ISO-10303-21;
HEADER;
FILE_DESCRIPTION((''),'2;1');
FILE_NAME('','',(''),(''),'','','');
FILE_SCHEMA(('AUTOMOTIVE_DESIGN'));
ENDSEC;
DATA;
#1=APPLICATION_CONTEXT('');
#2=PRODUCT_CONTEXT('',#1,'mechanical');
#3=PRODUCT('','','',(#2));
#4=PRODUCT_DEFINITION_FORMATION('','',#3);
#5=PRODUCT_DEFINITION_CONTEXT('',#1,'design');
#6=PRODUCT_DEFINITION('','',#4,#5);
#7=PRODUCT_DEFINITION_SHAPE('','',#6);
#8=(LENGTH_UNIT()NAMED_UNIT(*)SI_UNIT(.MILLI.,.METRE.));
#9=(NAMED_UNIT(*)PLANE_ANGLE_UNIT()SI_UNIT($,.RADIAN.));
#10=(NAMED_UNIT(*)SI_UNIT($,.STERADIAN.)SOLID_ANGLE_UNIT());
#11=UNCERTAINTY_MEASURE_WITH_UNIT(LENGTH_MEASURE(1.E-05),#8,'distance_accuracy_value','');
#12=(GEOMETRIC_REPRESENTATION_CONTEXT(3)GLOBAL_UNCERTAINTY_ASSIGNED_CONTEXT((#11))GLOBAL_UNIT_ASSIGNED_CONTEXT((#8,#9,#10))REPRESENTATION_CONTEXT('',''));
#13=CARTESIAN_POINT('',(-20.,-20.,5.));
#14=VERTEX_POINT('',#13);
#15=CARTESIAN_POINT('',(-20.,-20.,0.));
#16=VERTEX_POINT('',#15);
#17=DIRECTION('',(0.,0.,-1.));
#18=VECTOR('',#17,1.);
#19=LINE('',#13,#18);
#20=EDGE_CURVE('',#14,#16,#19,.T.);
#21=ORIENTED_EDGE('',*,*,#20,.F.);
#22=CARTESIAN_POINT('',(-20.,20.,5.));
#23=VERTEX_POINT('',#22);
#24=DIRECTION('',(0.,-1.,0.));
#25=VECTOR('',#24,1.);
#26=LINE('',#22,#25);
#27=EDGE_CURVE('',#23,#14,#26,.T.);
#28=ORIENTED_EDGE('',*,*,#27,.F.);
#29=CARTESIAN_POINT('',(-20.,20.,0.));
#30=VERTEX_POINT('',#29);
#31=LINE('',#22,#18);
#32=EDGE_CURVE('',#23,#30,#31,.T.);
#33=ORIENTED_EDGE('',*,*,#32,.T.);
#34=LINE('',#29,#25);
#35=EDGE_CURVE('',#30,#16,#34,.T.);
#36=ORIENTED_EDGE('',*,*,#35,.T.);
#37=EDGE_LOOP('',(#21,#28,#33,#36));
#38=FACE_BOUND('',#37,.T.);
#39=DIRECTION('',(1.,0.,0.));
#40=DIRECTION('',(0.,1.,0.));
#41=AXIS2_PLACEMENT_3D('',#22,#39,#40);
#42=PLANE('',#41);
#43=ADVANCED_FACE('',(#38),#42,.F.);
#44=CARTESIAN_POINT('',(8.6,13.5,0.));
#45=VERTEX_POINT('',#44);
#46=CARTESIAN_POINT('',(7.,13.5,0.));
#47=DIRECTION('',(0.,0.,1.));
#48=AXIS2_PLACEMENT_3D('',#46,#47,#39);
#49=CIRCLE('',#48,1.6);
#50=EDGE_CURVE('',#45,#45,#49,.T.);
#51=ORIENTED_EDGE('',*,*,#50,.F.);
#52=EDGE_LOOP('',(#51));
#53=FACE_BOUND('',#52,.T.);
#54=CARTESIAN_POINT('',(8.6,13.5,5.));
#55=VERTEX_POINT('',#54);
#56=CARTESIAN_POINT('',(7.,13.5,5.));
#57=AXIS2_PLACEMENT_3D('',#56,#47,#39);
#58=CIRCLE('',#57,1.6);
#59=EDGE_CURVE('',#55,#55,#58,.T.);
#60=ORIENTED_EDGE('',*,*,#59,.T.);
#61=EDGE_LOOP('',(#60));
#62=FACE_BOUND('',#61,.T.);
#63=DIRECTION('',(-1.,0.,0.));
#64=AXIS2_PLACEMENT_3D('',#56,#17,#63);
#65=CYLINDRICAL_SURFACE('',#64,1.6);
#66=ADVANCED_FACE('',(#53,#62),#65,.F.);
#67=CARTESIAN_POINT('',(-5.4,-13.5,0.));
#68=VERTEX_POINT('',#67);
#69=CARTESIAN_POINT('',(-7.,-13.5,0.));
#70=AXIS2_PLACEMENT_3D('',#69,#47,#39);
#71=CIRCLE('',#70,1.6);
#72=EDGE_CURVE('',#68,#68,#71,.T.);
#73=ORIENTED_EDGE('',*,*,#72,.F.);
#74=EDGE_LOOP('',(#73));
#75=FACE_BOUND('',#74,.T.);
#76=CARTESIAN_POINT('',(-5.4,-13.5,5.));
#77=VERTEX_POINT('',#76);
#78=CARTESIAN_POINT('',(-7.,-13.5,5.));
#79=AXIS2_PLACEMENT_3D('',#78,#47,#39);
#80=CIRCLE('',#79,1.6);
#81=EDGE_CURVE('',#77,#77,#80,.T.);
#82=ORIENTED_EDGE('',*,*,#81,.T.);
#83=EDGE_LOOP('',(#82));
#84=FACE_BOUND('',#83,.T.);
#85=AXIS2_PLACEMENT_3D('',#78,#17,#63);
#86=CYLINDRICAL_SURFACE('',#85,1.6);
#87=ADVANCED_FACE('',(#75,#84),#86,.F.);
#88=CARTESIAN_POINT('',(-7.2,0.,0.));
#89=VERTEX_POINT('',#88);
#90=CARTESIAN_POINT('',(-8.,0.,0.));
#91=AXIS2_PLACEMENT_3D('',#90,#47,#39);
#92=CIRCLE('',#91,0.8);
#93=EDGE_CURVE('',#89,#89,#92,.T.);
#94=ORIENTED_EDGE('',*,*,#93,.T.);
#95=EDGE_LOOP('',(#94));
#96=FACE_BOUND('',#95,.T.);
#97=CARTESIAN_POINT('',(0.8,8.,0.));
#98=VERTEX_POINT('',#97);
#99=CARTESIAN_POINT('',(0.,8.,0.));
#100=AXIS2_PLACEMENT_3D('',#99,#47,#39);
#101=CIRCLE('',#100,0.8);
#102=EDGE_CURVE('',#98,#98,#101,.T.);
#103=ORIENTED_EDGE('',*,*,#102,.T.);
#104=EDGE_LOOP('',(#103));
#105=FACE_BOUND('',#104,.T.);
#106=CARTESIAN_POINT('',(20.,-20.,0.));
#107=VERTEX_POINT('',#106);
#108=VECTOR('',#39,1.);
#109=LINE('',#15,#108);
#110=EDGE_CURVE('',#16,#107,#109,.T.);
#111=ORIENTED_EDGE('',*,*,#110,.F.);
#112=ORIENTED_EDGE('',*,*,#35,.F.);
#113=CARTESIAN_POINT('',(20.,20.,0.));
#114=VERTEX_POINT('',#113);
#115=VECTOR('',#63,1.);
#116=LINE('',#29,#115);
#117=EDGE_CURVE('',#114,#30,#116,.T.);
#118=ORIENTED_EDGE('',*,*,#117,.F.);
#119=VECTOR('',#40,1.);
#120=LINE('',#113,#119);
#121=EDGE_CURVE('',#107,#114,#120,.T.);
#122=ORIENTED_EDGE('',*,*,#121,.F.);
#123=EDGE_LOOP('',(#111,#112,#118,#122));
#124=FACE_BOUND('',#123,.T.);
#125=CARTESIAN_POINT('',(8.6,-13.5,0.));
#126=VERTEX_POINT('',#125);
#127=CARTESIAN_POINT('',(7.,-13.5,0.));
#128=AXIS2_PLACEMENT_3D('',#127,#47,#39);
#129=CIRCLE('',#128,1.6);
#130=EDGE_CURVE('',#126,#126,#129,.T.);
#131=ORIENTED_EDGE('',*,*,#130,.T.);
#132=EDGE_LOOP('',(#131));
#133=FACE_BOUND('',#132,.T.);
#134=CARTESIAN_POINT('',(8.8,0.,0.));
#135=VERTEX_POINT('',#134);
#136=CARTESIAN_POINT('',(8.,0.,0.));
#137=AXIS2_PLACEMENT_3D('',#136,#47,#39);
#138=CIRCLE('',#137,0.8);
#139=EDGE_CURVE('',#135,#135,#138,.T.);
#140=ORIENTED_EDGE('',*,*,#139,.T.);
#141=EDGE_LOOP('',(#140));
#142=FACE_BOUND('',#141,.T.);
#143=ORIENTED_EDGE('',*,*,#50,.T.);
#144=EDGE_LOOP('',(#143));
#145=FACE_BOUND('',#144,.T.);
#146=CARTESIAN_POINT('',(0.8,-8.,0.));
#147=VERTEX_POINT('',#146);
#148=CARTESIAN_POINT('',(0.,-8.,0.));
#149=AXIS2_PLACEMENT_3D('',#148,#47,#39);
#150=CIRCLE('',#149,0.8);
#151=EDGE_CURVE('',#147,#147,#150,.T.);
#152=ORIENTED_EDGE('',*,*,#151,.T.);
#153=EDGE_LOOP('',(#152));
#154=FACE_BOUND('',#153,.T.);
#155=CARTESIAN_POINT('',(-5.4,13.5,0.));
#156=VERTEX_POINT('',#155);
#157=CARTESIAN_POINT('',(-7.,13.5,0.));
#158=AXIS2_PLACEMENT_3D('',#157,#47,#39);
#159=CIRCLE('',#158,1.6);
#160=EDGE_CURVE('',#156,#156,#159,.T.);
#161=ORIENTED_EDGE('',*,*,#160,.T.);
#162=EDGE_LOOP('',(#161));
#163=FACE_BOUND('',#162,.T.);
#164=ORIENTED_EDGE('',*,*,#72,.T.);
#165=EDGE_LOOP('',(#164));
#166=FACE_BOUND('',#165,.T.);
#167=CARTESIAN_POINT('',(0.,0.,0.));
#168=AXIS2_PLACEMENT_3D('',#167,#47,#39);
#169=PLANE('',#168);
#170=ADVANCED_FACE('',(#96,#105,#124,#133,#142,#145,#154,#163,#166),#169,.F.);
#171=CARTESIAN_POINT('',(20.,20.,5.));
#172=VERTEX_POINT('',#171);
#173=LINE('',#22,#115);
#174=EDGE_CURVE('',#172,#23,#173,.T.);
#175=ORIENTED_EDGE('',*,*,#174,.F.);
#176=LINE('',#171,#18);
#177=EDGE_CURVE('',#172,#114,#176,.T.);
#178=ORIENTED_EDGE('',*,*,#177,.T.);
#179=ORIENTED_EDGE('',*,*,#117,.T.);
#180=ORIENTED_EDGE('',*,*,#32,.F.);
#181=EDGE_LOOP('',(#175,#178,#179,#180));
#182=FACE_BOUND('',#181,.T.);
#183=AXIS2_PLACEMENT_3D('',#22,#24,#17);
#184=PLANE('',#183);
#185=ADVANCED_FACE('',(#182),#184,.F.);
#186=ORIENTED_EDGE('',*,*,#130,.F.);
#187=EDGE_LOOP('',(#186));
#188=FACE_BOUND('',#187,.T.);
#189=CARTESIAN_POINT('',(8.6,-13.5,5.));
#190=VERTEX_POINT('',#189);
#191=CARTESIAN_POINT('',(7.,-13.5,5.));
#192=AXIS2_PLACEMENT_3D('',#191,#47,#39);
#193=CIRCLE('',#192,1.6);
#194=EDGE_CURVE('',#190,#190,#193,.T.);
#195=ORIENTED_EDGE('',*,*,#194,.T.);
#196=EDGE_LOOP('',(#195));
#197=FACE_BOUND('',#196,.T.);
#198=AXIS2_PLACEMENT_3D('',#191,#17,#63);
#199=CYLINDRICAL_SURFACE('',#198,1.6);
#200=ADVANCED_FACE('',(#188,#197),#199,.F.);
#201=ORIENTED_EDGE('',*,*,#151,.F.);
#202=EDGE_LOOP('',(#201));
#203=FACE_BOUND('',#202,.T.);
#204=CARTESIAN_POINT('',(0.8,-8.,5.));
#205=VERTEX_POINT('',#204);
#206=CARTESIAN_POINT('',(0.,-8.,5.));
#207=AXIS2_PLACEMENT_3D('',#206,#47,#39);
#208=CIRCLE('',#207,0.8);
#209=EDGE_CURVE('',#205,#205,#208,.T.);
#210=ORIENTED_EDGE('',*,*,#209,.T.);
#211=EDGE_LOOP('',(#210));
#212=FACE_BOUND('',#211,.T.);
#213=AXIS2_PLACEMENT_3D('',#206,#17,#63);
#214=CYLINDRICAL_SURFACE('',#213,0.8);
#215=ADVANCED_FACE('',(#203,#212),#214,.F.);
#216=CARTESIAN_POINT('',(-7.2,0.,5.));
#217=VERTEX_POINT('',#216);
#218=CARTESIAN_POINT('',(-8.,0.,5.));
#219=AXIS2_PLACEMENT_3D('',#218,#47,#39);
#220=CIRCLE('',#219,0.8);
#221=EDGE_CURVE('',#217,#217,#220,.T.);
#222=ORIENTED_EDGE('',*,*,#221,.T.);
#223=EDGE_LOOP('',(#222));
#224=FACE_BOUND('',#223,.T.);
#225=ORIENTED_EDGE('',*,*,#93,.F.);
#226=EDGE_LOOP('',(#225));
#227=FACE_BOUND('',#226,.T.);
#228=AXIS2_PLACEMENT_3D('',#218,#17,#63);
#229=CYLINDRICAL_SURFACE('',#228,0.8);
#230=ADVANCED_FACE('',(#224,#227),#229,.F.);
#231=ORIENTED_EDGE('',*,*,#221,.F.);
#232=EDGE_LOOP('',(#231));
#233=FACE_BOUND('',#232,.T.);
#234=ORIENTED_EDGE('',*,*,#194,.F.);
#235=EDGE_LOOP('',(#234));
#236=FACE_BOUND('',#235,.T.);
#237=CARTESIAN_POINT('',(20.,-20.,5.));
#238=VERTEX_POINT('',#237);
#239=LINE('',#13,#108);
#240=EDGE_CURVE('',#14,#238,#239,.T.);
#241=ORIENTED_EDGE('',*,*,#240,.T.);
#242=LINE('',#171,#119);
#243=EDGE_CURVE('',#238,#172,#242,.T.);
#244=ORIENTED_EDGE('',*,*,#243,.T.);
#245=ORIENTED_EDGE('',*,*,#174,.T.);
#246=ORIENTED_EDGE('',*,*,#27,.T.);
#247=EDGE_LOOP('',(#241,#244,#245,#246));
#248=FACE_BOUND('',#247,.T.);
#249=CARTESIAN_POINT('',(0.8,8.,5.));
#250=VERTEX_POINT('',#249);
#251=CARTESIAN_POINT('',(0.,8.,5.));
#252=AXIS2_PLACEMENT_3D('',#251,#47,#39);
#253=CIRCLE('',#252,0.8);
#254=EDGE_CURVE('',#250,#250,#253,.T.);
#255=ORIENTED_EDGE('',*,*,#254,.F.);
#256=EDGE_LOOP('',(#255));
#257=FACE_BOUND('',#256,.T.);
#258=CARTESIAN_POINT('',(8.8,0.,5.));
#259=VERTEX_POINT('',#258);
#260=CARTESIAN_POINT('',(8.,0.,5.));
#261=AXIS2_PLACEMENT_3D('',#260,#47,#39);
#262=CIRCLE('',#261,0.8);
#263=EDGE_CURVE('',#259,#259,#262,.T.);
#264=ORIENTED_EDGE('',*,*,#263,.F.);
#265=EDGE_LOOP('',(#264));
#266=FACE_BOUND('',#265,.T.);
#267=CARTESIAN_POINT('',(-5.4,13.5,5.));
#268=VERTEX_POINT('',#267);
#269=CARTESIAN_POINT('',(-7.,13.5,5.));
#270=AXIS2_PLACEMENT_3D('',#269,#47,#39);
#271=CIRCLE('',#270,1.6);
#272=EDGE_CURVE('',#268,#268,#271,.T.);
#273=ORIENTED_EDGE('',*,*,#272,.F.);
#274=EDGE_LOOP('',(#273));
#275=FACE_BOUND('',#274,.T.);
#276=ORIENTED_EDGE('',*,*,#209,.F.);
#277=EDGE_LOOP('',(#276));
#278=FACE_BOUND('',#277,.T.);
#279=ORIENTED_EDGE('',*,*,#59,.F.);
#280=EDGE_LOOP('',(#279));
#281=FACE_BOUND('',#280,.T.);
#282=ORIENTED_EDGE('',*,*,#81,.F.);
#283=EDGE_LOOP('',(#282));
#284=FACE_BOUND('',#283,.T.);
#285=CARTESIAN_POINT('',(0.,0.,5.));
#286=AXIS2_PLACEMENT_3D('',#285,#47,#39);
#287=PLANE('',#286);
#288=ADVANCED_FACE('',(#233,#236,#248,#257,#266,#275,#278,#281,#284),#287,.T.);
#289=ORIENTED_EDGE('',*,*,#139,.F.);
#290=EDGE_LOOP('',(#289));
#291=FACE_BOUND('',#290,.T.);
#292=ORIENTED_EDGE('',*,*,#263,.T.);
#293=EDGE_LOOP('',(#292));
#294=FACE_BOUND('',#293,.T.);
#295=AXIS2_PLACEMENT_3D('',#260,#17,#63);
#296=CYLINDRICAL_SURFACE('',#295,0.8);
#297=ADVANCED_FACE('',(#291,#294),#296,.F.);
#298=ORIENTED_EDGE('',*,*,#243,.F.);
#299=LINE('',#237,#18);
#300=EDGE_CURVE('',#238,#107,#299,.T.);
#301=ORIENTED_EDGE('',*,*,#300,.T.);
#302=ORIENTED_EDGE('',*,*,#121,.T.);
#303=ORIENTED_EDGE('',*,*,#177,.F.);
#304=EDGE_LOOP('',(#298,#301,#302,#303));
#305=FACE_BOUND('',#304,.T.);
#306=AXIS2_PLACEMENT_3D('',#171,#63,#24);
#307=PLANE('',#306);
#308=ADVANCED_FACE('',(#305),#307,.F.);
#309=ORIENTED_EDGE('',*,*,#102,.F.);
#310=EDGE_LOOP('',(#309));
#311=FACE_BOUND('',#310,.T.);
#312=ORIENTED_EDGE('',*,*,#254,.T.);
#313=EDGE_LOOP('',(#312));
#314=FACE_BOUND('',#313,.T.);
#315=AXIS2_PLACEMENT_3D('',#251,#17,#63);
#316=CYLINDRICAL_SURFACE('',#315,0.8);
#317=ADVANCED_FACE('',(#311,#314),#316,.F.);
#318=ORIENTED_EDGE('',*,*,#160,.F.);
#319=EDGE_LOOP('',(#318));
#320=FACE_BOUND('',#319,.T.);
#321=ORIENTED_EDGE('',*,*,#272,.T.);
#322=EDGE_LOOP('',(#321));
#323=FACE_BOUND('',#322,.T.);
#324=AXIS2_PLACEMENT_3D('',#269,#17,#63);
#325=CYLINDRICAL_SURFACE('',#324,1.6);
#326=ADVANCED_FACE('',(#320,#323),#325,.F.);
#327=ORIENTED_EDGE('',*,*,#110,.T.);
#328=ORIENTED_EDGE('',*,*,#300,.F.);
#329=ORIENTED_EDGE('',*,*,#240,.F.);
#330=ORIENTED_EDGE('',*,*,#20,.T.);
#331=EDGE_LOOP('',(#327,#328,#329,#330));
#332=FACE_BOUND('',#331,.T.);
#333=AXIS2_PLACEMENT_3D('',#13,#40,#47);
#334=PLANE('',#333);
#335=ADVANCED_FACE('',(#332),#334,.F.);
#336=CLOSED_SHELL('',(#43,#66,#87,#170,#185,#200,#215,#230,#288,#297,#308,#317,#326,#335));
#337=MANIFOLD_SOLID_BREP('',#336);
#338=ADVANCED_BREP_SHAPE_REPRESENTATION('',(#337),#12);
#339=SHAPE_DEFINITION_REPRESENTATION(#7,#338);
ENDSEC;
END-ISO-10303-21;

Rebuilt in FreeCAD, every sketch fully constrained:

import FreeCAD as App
import Part
import Sketcher


def add_polygon(sketch, points):
    """Adds a closed chain of lines whose ends are joined by coincident constraints."""
    first, n = sketch.GeometryCount, len(points)
    for a, b in zip(points, points[1:] + points[:1]):
        sketch.addGeometry(Part.LineSegment(App.Vector(*a, 0), App.Vector(*b, 0)), False)
    for i in range(n):
        sketch.addConstraint(Sketcher.Constraint("Coincident", first + i, 2, first + (i + 1) % n, 1))

doc = App.newDocument("Part")
body = doc.addObject("PartDesign::Body", "Body")

# Sketch on XY plane
sketch1 = body.newObject("Sketcher::SketchObject", "Sketch")
sketch1.AttachmentSupport = (doc.getObject("XY_Plane"), [""])
sketch1.MapMode = "FlatFace"
add_polygon(sketch1, [(-20, 20), (-20, -20), (20, -20), (20, 20)])  # lines 0-3
sketch1.addGeometry(Part.Circle(App.Vector(-7, -13.5, 0), App.Vector(0, 0, 1), 1.6), False)  # 4
sketch1.addGeometry(Part.Circle(App.Vector(0, -8, 0), App.Vector(0, 0, 1), 0.8), False)  # 5
sketch1.addGeometry(Part.Circle(App.Vector(7, -13.5, 0), App.Vector(0, 0, 1), 1.6), False)  # 6
sketch1.addGeometry(Part.Circle(App.Vector(-8, 0, 0), App.Vector(0, 0, 1), 0.8), False)  # 7
sketch1.addGeometry(Part.Circle(App.Vector(-7, 13.5, 0), App.Vector(0, 0, 1), 1.6), False)  # 8
sketch1.addGeometry(Part.Circle(App.Vector(8, 0, 0), App.Vector(0, 0, 1), 0.8), False)  # 9
sketch1.addGeometry(Part.Circle(App.Vector(0, 8, 0), App.Vector(0, 0, 1), 0.8), False)  # 10
sketch1.addGeometry(Part.Circle(App.Vector(7, 13.5, 0), App.Vector(0, 0, 1), 1.6), False)  # 11
sketch1.addConstraint([
    Sketcher.Constraint("Vertical", 0),
    Sketcher.Constraint("Horizontal", 1),
    Sketcher.Constraint("Vertical", 2),
    Sketcher.Constraint("Horizontal", 3),
    Sketcher.Constraint("Equal", 4, 6),
    Sketcher.Constraint("Equal", 5, 7),
    Sketcher.Constraint("Equal", 6, 8),
    Sketcher.Constraint("Equal", 7, 9),
    Sketcher.Constraint("Equal", 9, 10),
    Sketcher.Constraint("Equal", 8, 11),
    Sketcher.Constraint("Symmetric", 6, 3, 8, 3, -1, 1),
    Sketcher.Constraint("Symmetric", 7, 3, 9, 3, -1, 1),
    Sketcher.Constraint("Symmetric", 5, 3, 10, 3, -1, 1),
    Sketcher.Constraint("Symmetric", 4, 3, 11, 3, -1, 1),
    Sketcher.Constraint("Symmetric", 0, 2, 2, 2, -1, 1),
    Sketcher.Constraint("Symmetric", 4, 3, 6, 3, -2),
    Sketcher.Constraint("PointOnObject", 5, 3, -2),
    Sketcher.Constraint("PointOnObject", 7, 3, -1),
    Sketcher.Constraint("Equal", 3, 0),
    Sketcher.Constraint("Diameter", 4, 3.2),
    Sketcher.Constraint("Diameter", 5, 1.6),
    Sketcher.Constraint("DistanceX", 1, 1, 1, 2, 40.0),
    Sketcher.Constraint("DistanceX", 4, 3, -1, 1, 7.0),
    Sketcher.Constraint("DistanceY", 5, 3, -1, 1, 8.0),
    Sketcher.Constraint("DistanceX", 7, 3, -1, 1, 8.0),
    Sketcher.Constraint("DistanceY", 4, 3, 8, 3, 27.0),
])
pad1 = body.newObject("PartDesign::Pad", "Pad")
pad1.Profile = sketch1
pad1.Length = 5

doc.recompute()
